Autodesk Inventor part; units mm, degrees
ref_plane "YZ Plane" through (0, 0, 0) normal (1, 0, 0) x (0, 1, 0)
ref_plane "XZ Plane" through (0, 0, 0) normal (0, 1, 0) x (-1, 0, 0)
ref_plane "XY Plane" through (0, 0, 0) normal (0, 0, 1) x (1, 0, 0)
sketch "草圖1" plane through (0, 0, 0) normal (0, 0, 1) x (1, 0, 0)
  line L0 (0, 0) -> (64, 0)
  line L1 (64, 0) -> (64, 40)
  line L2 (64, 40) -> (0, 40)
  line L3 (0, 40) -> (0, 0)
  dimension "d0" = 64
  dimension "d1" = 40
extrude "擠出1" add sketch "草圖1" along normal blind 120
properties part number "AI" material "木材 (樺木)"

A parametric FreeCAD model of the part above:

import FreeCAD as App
import Part
import Sketcher

V = App.Vector
Q = App.Units.Quantity


def add_polygon(sketch, points):
    """Adds a closed chain of lines whose ends are joined by coincident constraints."""
    first, n = sketch.GeometryCount, len(points)
    for a, b in zip(points, points[1:] + points[:1]):
        sketch.addGeometry(Part.LineSegment(App.Vector(*a, 0), App.Vector(*b, 0)), False)
    for i in range(n):
        sketch.addConstraint(Sketcher.Constraint("Coincident", first + i, 2, first + (i + 1) % n, 1))

doc = App.newDocument("Part")
params = doc.addObject("Spreadsheet::Sheet", "Params")
for row, (alias, value) in enumerate([
    ("sketch1_width", "64 mm"),
    ("sketch1_height", "40 mm"),
    ("pad1_length", "120 mm"),
], start=1):
    params.set(f"A{row}", alias)
    params.set(f"B{row}", "=" + value)
    params.setAlias(f"B{row}", alias)

body = doc.addObject("PartDesign::Body", "Body")

# Sketch on XY plane
sketch1 = body.newObject("Sketcher::SketchObject", "Sketch")
sketch1.AttachmentSupport = (doc.getObject("XY_Plane"), [""])
sketch1.MapMode = "FlatFace"
add_polygon(sketch1, [(0, 40), (0, 0), (64, 0), (64, 40)])  # lines 0-3
sketch1.addConstraint([
    Sketcher.Constraint("Vertical", 0),
    Sketcher.Constraint("Horizontal", 1),
    Sketcher.Constraint("Vertical", 2),
    Sketcher.Constraint("Horizontal", 3),
    Sketcher.Constraint("Coincident", 0, 2, -1, 1),
    Sketcher.Constraint("DistanceX", 1, 1, 1, 2, Q("64 mm")),
    Sketcher.Constraint("DistanceY", 0, 2, 0, 1, Q("40 mm")),
])
sketch1.setExpression("Constraints[9]", "Params.sketch1_width")
sketch1.setExpression("Constraints[10]", "Params.sketch1_height")
pad1 = body.newObject("PartDesign::Pad", "Pad")
pad1.Profile = sketch1
pad1.setExpression("Length", "Params.pad1_length")

doc.recompute()
